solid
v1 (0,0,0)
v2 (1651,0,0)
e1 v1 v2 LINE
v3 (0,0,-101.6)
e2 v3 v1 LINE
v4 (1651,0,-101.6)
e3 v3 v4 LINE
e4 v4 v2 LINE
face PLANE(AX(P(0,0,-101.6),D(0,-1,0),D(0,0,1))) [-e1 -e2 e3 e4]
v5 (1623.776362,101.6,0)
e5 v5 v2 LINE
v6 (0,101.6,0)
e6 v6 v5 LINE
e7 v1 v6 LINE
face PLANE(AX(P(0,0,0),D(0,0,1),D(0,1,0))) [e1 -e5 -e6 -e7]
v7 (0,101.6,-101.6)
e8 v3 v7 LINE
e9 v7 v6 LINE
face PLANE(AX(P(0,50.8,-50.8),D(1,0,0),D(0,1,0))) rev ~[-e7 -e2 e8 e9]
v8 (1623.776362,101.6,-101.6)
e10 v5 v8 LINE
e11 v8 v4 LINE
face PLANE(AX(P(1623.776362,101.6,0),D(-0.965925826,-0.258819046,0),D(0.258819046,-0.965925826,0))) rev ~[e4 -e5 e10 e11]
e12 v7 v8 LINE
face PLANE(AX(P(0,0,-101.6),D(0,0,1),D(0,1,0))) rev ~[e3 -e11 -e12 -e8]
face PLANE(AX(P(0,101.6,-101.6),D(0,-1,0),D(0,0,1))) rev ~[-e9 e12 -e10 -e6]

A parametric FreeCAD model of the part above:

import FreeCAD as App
import Part
import Sketcher
from FreeCAD import Vector
Q = App.Units.Quantity

doc = App.newDocument("Part")
params = doc.addObject("Spreadsheet::Sheet", "Params")
for row, (alias, value) in enumerate([
    ("sketch1_width", "4 in"),
    ("pad1_length", "65 in"),
    ("sketch2_height", "4 in"),
    ("pocket1_length", "5 in"),
], start=1):
    params.set(f"A{row}", alias)
    params.set(f"B{row}", "=" + value)
    params.setAlias(f"B{row}", alias)

body = doc.addObject("PartDesign::Body", "Body")

sketch1 = body.newObject("Sketcher::SketchObject", "Sketch")
sketch1.AttachmentSupport = (doc.getObject("YZ_Plane"), [""])
sketch1.MapMode = "FlatFace"
sketch1.addGeometry([
    Part.LineSegment(Vector(0, 0, 0), Vector(0, -102, 0)),
    Part.LineSegment(Vector(0, -102, 0), Vector(102, -102, 0)),
    Part.LineSegment(Vector(102, -102, 0), Vector(102, 0, 0)),
    Part.LineSegment(Vector(102, 0, 0), Vector(0, 0, 0)),
], False)
sketch1.addConstraint([
    Sketcher.Constraint("Coincident", 0, 2, 1, 1),
    Sketcher.Constraint("Coincident", 1, 2, 2, 1),
    Sketcher.Constraint("Coincident", 2, 2, 3, 1),
    Sketcher.Constraint("Coincident", 3, 2, 0, 1),
    Sketcher.Constraint("Vertical", 0),
    Sketcher.Constraint("Horizontal", 1),
    Sketcher.Constraint("Vertical", 2),
    Sketcher.Constraint("Horizontal", 3),
    Sketcher.Constraint("Coincident", 3, 2, -1, 1),
    Sketcher.Constraint("Equal", 3, 0),
    Sketcher.Constraint("DistanceX", 1, 1, 1, 2, Q("4 in")),
])
sketch1.setExpression("Constraints[10]", "Params.sketch1_width")
pad1 = body.newObject("PartDesign::Pad", "Pad")
pad1.Profile = sketch1
pad1.setExpression("Length", "Params.pad1_length")

sketch2 = body.newObject("Sketcher::SketchObject", "Sketch001")
sketch2.AttachmentSupport = (doc.getObject("XY_Plane"), [""])
sketch2.MapMode = "FlatFace"
sketch2.addGeometry([
    Part.LineSegment(Vector(1651, 102, 0), Vector(1624, 102, 0)),
    Part.LineSegment(Vector(1624, 102, 0), Vector(1651, 0, 0)),
    Part.LineSegment(Vector(1651, 0, 0), Vector(1651, 102, 0)),
], False)
sketch2.addConstraint([
    Sketcher.Constraint("Coincident", 0, 2, 1, 1),
    Sketcher.Constraint("Coincident", 1, 2, 2, 1),
    Sketcher.Constraint("Coincident", 2, 2, 0, 1),
    Sketcher.Constraint("Horizontal", 0),
    Sketcher.Constraint("Vertical", 2),
    Sketcher.Constraint("PointOnObject", 1, 2, -1),
    Sketcher.Constraint("DistanceY", 2, 1, 2, 2, Q("4 in")),
    Sketcher.Constraint("DistanceX", -1, 1, 1, 2, Q("65 in")),
    Sketcher.Constraint("Angle", 1, Q("-75 deg")),
])
sketch2.setExpression("Constraints[6]", "Params.sketch2_height")
pocket1 = body.newObject("PartDesign::Pocket", "Pocket")
pocket1.Profile = sketch2
pocket1.setExpression("Length", "Params.pocket1_length")

doc.recompute()
